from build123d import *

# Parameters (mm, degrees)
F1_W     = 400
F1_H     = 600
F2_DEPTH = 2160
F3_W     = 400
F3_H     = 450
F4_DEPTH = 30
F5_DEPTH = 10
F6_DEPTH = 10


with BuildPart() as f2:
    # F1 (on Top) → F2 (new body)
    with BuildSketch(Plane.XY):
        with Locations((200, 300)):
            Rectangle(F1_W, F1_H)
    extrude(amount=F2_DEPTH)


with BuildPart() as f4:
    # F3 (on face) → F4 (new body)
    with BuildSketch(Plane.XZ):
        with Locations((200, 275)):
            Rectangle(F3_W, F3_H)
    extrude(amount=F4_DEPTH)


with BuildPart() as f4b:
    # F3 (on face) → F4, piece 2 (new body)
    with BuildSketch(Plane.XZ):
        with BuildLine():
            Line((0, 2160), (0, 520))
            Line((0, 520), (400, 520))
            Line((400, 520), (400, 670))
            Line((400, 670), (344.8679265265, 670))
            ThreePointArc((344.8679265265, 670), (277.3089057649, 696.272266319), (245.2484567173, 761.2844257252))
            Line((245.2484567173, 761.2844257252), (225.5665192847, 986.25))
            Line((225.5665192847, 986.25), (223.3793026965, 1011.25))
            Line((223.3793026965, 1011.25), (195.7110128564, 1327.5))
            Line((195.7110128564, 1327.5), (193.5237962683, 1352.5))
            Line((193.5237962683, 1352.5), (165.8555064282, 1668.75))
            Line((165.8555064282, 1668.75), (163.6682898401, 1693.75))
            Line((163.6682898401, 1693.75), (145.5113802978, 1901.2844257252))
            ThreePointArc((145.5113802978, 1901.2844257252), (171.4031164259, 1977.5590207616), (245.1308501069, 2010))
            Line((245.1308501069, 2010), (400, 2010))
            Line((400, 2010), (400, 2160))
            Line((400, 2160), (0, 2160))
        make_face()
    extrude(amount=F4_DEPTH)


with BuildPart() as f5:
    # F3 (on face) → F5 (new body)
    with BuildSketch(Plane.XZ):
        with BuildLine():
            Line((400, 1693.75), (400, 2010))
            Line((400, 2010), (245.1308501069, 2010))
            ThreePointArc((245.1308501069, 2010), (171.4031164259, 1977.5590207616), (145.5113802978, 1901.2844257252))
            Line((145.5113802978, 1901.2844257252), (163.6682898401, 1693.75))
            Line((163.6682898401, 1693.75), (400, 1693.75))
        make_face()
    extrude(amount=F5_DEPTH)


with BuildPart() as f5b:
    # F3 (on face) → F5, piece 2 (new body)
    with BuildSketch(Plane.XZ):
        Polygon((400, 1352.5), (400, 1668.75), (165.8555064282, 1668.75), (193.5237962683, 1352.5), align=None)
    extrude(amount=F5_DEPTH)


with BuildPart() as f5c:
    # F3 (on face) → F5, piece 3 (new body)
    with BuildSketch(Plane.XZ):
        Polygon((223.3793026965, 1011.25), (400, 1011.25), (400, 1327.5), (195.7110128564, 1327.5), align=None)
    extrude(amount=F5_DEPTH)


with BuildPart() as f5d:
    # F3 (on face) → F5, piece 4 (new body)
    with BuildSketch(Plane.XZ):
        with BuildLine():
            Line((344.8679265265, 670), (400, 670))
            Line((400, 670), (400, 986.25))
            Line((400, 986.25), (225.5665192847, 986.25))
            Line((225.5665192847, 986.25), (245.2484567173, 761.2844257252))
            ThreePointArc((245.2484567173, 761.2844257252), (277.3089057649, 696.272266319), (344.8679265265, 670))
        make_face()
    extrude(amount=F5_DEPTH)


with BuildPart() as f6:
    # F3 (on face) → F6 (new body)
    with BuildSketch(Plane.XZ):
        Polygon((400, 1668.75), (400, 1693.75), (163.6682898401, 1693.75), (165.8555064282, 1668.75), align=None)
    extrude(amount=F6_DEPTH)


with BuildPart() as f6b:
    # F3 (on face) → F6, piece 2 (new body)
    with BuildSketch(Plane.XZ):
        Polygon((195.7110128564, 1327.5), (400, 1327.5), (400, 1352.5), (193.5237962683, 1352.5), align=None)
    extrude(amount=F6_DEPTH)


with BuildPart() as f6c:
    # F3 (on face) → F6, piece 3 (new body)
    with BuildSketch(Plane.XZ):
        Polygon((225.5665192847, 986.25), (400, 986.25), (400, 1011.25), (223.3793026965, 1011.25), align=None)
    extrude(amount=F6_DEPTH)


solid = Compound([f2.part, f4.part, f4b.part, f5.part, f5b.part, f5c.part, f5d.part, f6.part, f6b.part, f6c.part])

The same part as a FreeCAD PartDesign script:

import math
import FreeCAD as App
import Part
import Sketcher
Q = App.Units.Quantity

doc = App.newDocument("Part")
body = doc.addObject("PartDesign::Body", "Body")

# Sketch on XY plane
sketch1 = doc.addObject("Sketcher::SketchObject", "Sketch")
body.addObject(sketch1)
sketch1.AttachmentSupport = (doc.XY_Plane, [""])
sketch1.MapMode = "FlatFace"
sketch1.addGeometry([
    Part.LineSegment(App.Vector(0, 600, 0), App.Vector(0, 0, 0)),
    Part.LineSegment(App.Vector(0, 0, 0), App.Vector(400, 0, 0)),
    Part.LineSegment(App.Vector(400, 0, 0), App.Vector(400, 600, 0)),
    Part.LineSegment(App.Vector(400, 600, 0), App.Vector(0, 600, 0)),
], False)
sketch1.addConstraint([
    Sketcher.Constraint("Coincident", 0, 2, 1, 1),
    Sketcher.Constraint("Coincident", 1, 2, 2, 1),
    Sketcher.Constraint("Coincident", 2, 2, 3, 1),
    Sketcher.Constraint("Coincident", 3, 2, 0, 1),
    Sketcher.Constraint("Vertical", 0),
    Sketcher.Constraint("Horizontal", 1),
    Sketcher.Constraint("Vertical", 2),
    Sketcher.Constraint("Horizontal", 3),
    Sketcher.Constraint("Coincident", 0, 2, -1, 1),
    Sketcher.Constraint("DistanceX", 1, 1, 1, 2, 400.0),
    Sketcher.Constraint("DistanceY", 0, 2, 0, 1, 600.0),
])
pad1 = doc.addObject("PartDesign::Pad", "Pad")
body.addObject(pad1)
pad1.Profile = sketch1
pad1.Length = 2160
body2 = doc.addObject("PartDesign::Body", "Body001")

# Sketch on XZ plane
sketch2 = doc.addObject("Sketcher::SketchObject", "Sketch001")
body2.addObject(sketch2)
sketch2.AttachmentSupport = (doc.getObject("XZ_Plane001"), [""])
sketch2.MapMode = "FlatFace"
sketch2.addGeometry([
    Part.LineSegment(App.Vector(0, 500, 0), App.Vector(0, 50, 0)),
    Part.LineSegment(App.Vector(0, 50, 0), App.Vector(400, 50, 0)),
    Part.LineSegment(App.Vector(400, 50, 0), App.Vector(400, 500, 0)),
    Part.LineSegment(App.Vector(400, 500, 0), App.Vector(0, 500, 0)),
], False)
sketch2.addConstraint([
    Sketcher.Constraint("Coincident", 0, 2, 1, 1),
    Sketcher.Constraint("Coincident", 1, 2, 2, 1),
    Sketcher.Constraint("Coincident", 2, 2, 3, 1),
    Sketcher.Constraint("Coincident", 3, 2, 0, 1),
    Sketcher.Constraint("Vertical", 0),
    Sketcher.Constraint("Horizontal", 1),
    Sketcher.Constraint("Vertical", 2),
    Sketcher.Constraint("Horizontal", 3),
    Sketcher.Constraint("PointOnObject", 0, 2, -2),
    Sketcher.Constraint("DistanceX", 1, 1, 1, 2, 400.0),
    Sketcher.Constraint("DistanceY", 0, 2, 0, 1, 450.0),
    Sketcher.Constraint("DistanceY", -1, 1, 0, 2, 50.0),
])
pad2 = doc.addObject("PartDesign::Pad", "Pad001")
body2.addObject(pad2)
pad2.Profile = sketch2
pad2.Length = 30
body3 = doc.addObject("PartDesign::Body", "Body002")

# Sketch on XZ plane
sketch3 = doc.addObject("Sketcher::SketchObject", "Sketch002")
body3.addObject(sketch3)
sketch3.AttachmentSupport = (doc.getObject("XZ_Plane002"), [""])
sketch3.MapMode = "FlatFace"
sketch3.addGeometry([
    Part.LineSegment(App.Vector(0, 2160, 0), App.Vector(0, 520, 0)),  # 0
    Part.LineSegment(App.Vector(0, 520, 0), App.Vector(400, 520, 0)),  # 1
    Part.LineSegment(App.Vector(400, 520, 0), App.Vector(400, 670, 0)),  # 2
    Part.LineSegment(App.Vector(400, 670, 0), App.Vector(344.867927, 670, 0)),  # 3
    Part.ArcOfCircle(Part.Circle(App.Vector(344.867927, 770, 0), App.Vector(0, 0, 1), 100), math.radians(-175), math.radians(-90)),  # 4
    Part.LineSegment(App.Vector(245.248457, 761.284426, 0), App.Vector(225.566519, 986.25, 0)),  # 5
    Part.LineSegment(App.Vector(225.566519, 986.25, 0), App.Vector(223.379303, 1011.25, 0)),  # 6
    Part.LineSegment(App.Vector(223.379303, 1011.25, 0), App.Vector(195.711013, 1327.5, 0)),  # 7
    Part.LineSegment(App.Vector(195.711013, 1327.5, 0), App.Vector(193.523796, 1352.5, 0)),  # 8
    Part.LineSegment(App.Vector(193.523796, 1352.5, 0), App.Vector(165.855506, 1668.75, 0)),  # 9
    Part.LineSegment(App.Vector(165.855506, 1668.75, 0), App.Vector(163.66829, 1693.75, 0)),  # 10
    Part.LineSegment(App.Vector(163.66829, 1693.75, 0), App.Vector(145.51138, 1901.284426, 0)),  # 11
    Part.ArcOfCircle(Part.Circle(App.Vector(245.13085, 1910, 0), App.Vector(0, 0, 1), 100), math.radians(90), math.radians(185)),  # 12
    Part.LineSegment(App.Vector(245.13085, 2010, 0), App.Vector(400, 2010, 0)),  # 13
    Part.LineSegment(App.Vector(400, 2010, 0), App.Vector(400, 2160, 0)),  # 14
    Part.LineSegment(App.Vector(400, 2160, 0), App.Vector(0, 2160, 0)),  # 15
], False)
sketch3.addConstraint([
    Sketcher.Constraint("Coincident", 0, 2, 1, 1),
    Sketcher.Constraint("Coincident", 1, 2, 2, 1),
    Sketcher.Constraint("Coincident", 2, 2, 3, 1),
    Sketcher.Constraint("Tangent", 3, 2, 4, 2),
    Sketcher.Constraint("Tangent", 4, 1, 5, 1),
    Sketcher.Constraint("Coincident", 5, 2, 6, 1),
    Sketcher.Constraint("Coincident", 6, 2, 7, 1),
    Sketcher.Constraint("Coincident", 7, 2, 8, 1),
    Sketcher.Constraint("Coincident", 8, 2, 9, 1),
    Sketcher.Constraint("Coincident", 9, 2, 10, 1),
    Sketcher.Constraint("Coincident", 10, 2, 11, 1),
    Sketcher.Constraint("Tangent", 11, 2, 12, 2),
    Sketcher.Constraint("Tangent", 12, 1, 13, 1),
    Sketcher.Constraint("Coincident", 13, 2, 14, 1),
    Sketcher.Constraint("Coincident", 14, 2, 15, 1),
    Sketcher.Constraint("Coincident", 15, 2, 0, 1),
    Sketcher.Constraint("Vertical", 0),
    Sketcher.Constraint("Horizontal", 1),
    Sketcher.Constraint("Vertical", 2),
    Sketcher.Constraint("Horizontal", 3),
    Sketcher.Constraint("Horizontal", 13),
    Sketcher.Constraint("Vertical", 14),
    Sketcher.Constraint("Horizontal", 15),
    Sketcher.Constraint("Equal", 4, 12),
    Sketcher.Constraint("PointOnObject", 0, 2, -2),
    Sketcher.Constraint("Parallel", 5, 6),
    Sketcher.Constraint("Parallel", 6, 7),
    Sketcher.Constraint("Parallel", 7, 8),
    Sketcher.Constraint("Parallel", 8, 9),
    Sketcher.Constraint("Parallel", 9, 10),
    Sketcher.Constraint("Parallel", 10, 11),
    Sketcher.Constraint("Vertical", 2, 2, 13, 2),
    Sketcher.Constraint("Equal", 2, 14),
    Sketcher.Constraint("Equal", 6, 8),
    Sketcher.Constraint("Equal", 7, 9),
    Sketcher.Constraint("Equal", 8, 10),
    Sketcher.Constraint("Radius", 4, 100.0),
    Sketcher.Constraint("DistanceX", 1, 1, 1, 2, 400.0),
    Sketcher.Constraint("DistanceY", 0, 2, 0, 1, 1640.0),
    Sketcher.Constraint("DistanceY", 2, 1, 2, 2, 150.0),
    Sketcher.Constraint("Angle", 5, Q("95 deg")),
    Sketcher.Constraint("DistanceY", -1, 1, 4, 3, 770.0),
    Sketcher.Constraint("DistanceY", 5, 2, 6, 2, 25.0),
    Sketcher.Constraint("DistanceY", -1, 1, 7, 2, 1327.5),
    Sketcher.Constraint("DistanceY", 6, 2, 9, 2, 657.5),
    Sketcher.Constraint("DistanceX", 13, 1, 13, 2, 154.86915),
])
pad3 = doc.addObject("PartDesign::Pad", "Pad002")
body3.addObject(pad3)
pad3.Profile = sketch3
pad3.Length = 30
body4 = doc.addObject("PartDesign::Body", "Body003")

# Sketch on XZ plane
sketch4 = doc.addObject("Sketcher::SketchObject", "Sketch003")
body4.addObject(sketch4)
sketch4.AttachmentSupport = (doc.getObject("XZ_Plane003"), [""])
sketch4.MapMode = "FlatFace"
sketch4.addGeometry([
    Part.LineSegment(App.Vector(400, 1693.75, 0), App.Vector(400, 2010, 0)),  # 0
    Part.LineSegment(App.Vector(400, 2010, 0), App.Vector(245.13085, 2010, 0)),  # 1
    Part.ArcOfCircle(Part.Circle(App.Vector(245.13085, 1910, 0), App.Vector(0, 0, 1), 100), math.radians(90), math.radians(185)),  # 2
    Part.LineSegment(App.Vector(145.51138, 1901.284426, 0), App.Vector(163.66829, 1693.75, 0)),  # 3
    Part.LineSegment(App.Vector(163.66829, 1693.75, 0), App.Vector(400, 1693.75, 0)),  # 4
], False)
sketch4.addConstraint([
    Sketcher.Constraint("Coincident", 0, 2, 1, 1),
    Sketcher.Constraint("Tangent", 1, 2, 2, 1),
    Sketcher.Constraint("Tangent", 2, 2, 3, 1),
    Sketcher.Constraint("Coincident", 3, 2, 4, 1),
    Sketcher.Constraint("Coincident", 4, 2, 0, 1),
    Sketcher.Constraint("Vertical", 0),
    Sketcher.Constraint("Horizontal", 1),
    Sketcher.Constraint("Horizontal", 4),
    Sketcher.Constraint("Radius", 2, 100.0),
    Sketcher.Constraint("Angle", 3, Q("-85 deg")),
    Sketcher.Constraint("DistanceY", -1, 1, 2, 3, 1910.0),
    Sketcher.Constraint("DistanceX", -1, 1, 0, 2, 400.0),
    Sketcher.Constraint("DistanceY", 0, 1, 0, 2, 316.25),
    Sketcher.Constraint("DistanceX", 1, 2, 1, 1, 154.86915),
])
pad4 = doc.addObject("PartDesign::Pad", "Pad003")
body4.addObject(pad4)
pad4.Profile = sketch4
pad4.Length = 10
body5 = doc.addObject("PartDesign::Body", "Body004")

# Sketch on XZ plane
sketch5 = doc.addObject("Sketcher::SketchObject", "Sketch004")
body5.addObject(sketch5)
sketch5.AttachmentSupport = (doc.getObject("XZ_Plane004"), [""])
sketch5.MapMode = "FlatFace"
sketch5.addGeometry([
    Part.LineSegment(App.Vector(400, 1352.5, 0), App.Vector(400, 1668.75, 0)),
    Part.LineSegment(App.Vector(400, 1668.75, 0), App.Vector(165.855506, 1668.75, 0)),
    Part.LineSegment(App.Vector(165.855506, 1668.75, 0), App.Vector(193.523796, 1352.5, 0)),
    Part.LineSegment(App.Vector(193.523796, 1352.5, 0), App.Vector(400, 1352.5, 0)),
], False)
sketch5.addConstraint([
    Sketcher.Constraint("Coincident", 0, 2, 1, 1),
    Sketcher.Constraint("Coincident", 1, 2, 2, 1),
    Sketcher.Constraint("Coincident", 2, 2, 3, 1),
    Sketcher.Constraint("Coincident", 3, 2, 0, 1),
    Sketcher.Constraint("Vertical", 0),
    Sketcher.Constraint("Horizontal", 1),
    Sketcher.Constraint("Horizontal", 3),
    Sketcher.Constraint("Angle", 2, Q("-85 deg")),
    Sketcher.Constraint("DistanceX", -1, 1, 0, 2, 400.0),
    Sketcher.Constraint("DistanceY", 0, 1, 0, 2, 316.25),
    Sketcher.Constraint("DistanceY", -1, 1, 2, 2, 1352.5),
    Sketcher.Constraint("DistanceX", 1, 2, 1, 1, 234.144494),
])
pad5 = doc.addObject("PartDesign::Pad", "Pad004")
body5.addObject(pad5)
pad5.Profile = sketch5
pad5.Length = 10
body6 = doc.addObject("PartDesign::Body", "Body005")

# Sketch on XZ plane
sketch6 = doc.addObject("Sketcher::SketchObject", "Sketch005")
body6.addObject(sketch6)
sketch6.AttachmentSupport = (doc.getObject("XZ_Plane005"), [""])
sketch6.MapMode = "FlatFace"
sketch6.addGeometry([
    Part.LineSegment(App.Vector(223.379303, 1011.25, 0), App.Vector(400, 1011.25, 0)),
    Part.LineSegment(App.Vector(400, 1011.25, 0), App.Vector(400, 1327.5, 0)),
    Part.LineSegment(App.Vector(400, 1327.5, 0), App.Vector(195.711013, 1327.5, 0)),
    Part.LineSegment(App.Vector(195.711013, 1327.5, 0), App.Vector(223.379303, 1011.25, 0)),
], False)
sketch6.addConstraint([
    Sketcher.Constraint("Coincident", 0, 2, 1, 1),
    Sketcher.Constraint("Coincident", 1, 2, 2, 1),
    Sketcher.Constraint("Coincident", 2, 2, 3, 1),
    Sketcher.Constraint("Coincident", 3, 2, 0, 1),
    Sketcher.Constraint("Horizontal", 0),
    Sketcher.Constraint("Vertical", 1),
    Sketcher.Constraint("Horizontal", 2),
    Sketcher.Constraint("Angle", 3, Q("-85 deg")),
    Sketcher.Constraint("DistanceX", -1, 1, 0, 2, 400.0),
    Sketcher.Constraint("DistanceY", 1, 1, 1, 2, 316.25),
    Sketcher.Constraint("DistanceY", -1, 1, 1, 2, 1327.5),
    Sketcher.Constraint("DistanceX", 0, 1, 0, 2, 176.620697),
])
pad6 = doc.addObject("PartDesign::Pad", "Pad005")
body6.addObject(pad6)
pad6.Profile = sketch6
pad6.Length = 10
body7 = doc.addObject("PartDesign::Body", "Body006")

# Sketch on XZ plane
sketch7 = doc.addObject("Sketcher::SketchObject", "Sketch006")
body7.addObject(sketch7)
sketch7.AttachmentSupport = (doc.getObject("XZ_Plane006"), [""])
sketch7.MapMode = "FlatFace"
sketch7.addGeometry([
    Part.LineSegment(App.Vector(344.867927, 670, 0), App.Vector(400, 670, 0)),  # 0
    Part.LineSegment(App.Vector(400, 670, 0), App.Vector(400, 986.25, 0)),  # 1
    Part.LineSegment(App.Vector(400, 986.25, 0), App.Vector(225.566519, 986.25, 0)),  # 2
    Part.LineSegment(App.Vector(225.566519, 986.25, 0), App.Vector(245.248457, 761.284426, 0)),  # 3
    Part.ArcOfCircle(Part.Circle(App.Vector(344.867927, 770, 0), App.Vector(0, 0, 1), 100), math.radians(-175), math.radians(-90)),  # 4
], False)
sketch7.addConstraint([
    Sketcher.Constraint("Coincident", 0, 2, 1, 1),
    Sketcher.Constraint("Coincident", 1, 2, 2, 1),
    Sketcher.Constraint("Coincident", 2, 2, 3, 1),
    Sketcher.Constraint("Tangent", 3, 2, 4, 1),
    Sketcher.Constraint("Tangent", 4, 2, 0, 1),
    Sketcher.Constraint("Horizontal", 0),
    Sketcher.Constraint("Vertical", 1),
    Sketcher.Constraint("Horizontal", 2),
    Sketcher.Constraint("Radius", 4, 100.0),
    Sketcher.Constraint("Angle", 3, Q("-85 deg")),
    Sketcher.Constraint("DistanceY", -1, 1, 4, 3, 770.0),
    Sketcher.Constraint("DistanceX", -1, 1, 0, 2, 400.0),
    Sketcher.Constraint("DistanceY", 1, 1, 1, 2, 316.25),
    Sketcher.Constraint("DistanceX", 2, 2, 2, 1, 174.433481),
])
pad7 = doc.addObject("PartDesign::Pad", "Pad006")
body7.addObject(pad7)
pad7.Profile = sketch7
pad7.Length = 10
body8 = doc.addObject("PartDesign::Body", "Body007")

# Sketch on XZ plane
sketch8 = doc.addObject("Sketcher::SketchObject", "Sketch007")
body8.addObject(sketch8)
sketch8.AttachmentSupport = (doc.getObject("XZ_Plane007"), [""])
sketch8.MapMode = "FlatFace"
sketch8.addGeometry([
    Part.LineSegment(App.Vector(400, 1668.75, 0), App.Vector(400, 1693.75, 0)),
    Part.LineSegment(App.Vector(400, 1693.75, 0), App.Vector(163.66829, 1693.75, 0)),
    Part.LineSegment(App.Vector(163.66829, 1693.75, 0), App.Vector(165.855506, 1668.75, 0)),
    Part.LineSegment(App.Vector(165.855506, 1668.75, 0), App.Vector(400, 1668.75, 0)),
], False)
sketch8.addConstraint([
    Sketcher.Constraint("Coincident", 0, 2, 1, 1),
    Sketcher.Constraint("Coincident", 1, 2, 2, 1),
    Sketcher.Constraint("Coincident", 2, 2, 3, 1),
    Sketcher.Constraint("Coincident", 3, 2, 0, 1),
    Sketcher.Constraint("Vertical", 0),
    Sketcher.Constraint("Horizontal", 1),
    Sketcher.Constraint("Horizontal", 3),
    Sketcher.Constraint("DistanceY", 0, 1, 0, 2, 25.0),
    Sketcher.Constraint("Angle", 2, Q("-85 deg")),
    Sketcher.Constraint("DistanceX", -1, 1, 0, 2, 400.0),
    Sketcher.Constraint("DistanceY", -1, 1, 0, 2, 1693.75),
    Sketcher.Constraint("DistanceX", 1, 2, 1, 1, 236.33171),
])
pad8 = doc.addObject("PartDesign::Pad", "Pad007")
body8.addObject(pad8)
pad8.Profile = sketch8
pad8.Length = 10
body9 = doc.addObject("PartDesign::Body", "Body008")

# Sketch on XZ plane
sketch9 = doc.addObject("Sketcher::SketchObject", "Sketch008")
body9.addObject(sketch9)
sketch9.AttachmentSupport = (doc.getObject("XZ_Plane008"), [""])
sketch9.MapMode = "FlatFace"
sketch9.addGeometry([
    Part.LineSegment(App.Vector(195.711013, 1327.5, 0), App.Vector(400, 1327.5, 0)),
    Part.LineSegment(App.Vector(400, 1327.5, 0), App.Vector(400, 1352.5, 0)),
    Part.LineSegment(App.Vector(400, 1352.5, 0), App.Vector(193.523796, 1352.5, 0)),
    Part.LineSegment(App.Vector(193.523796, 1352.5, 0), App.Vector(195.711013, 1327.5, 0)),
], False)
sketch9.addConstraint([
    Sketcher.Constraint("Coincident", 0, 2, 1, 1),
    Sketcher.Constraint("Coincident", 1, 2, 2, 1),
    Sketcher.Constraint("Coincident", 2, 2, 3, 1),
    Sketcher.Constraint("Coincident", 3, 2, 0, 1),
    Sketcher.Constraint("Horizontal", 0),
    Sketcher.Constraint("Vertical", 1),
    Sketcher.Constraint("Horizontal", 2),
    Sketcher.Constraint("DistanceY", 1, 1, 1, 2, 25.0),
    Sketcher.Constraint("Angle", 3, Q("-85 deg")),
    Sketcher.Constraint("DistanceX", -1, 1, 0, 2, 400.0),
    Sketcher.Constraint("DistanceY", -1, 1, 0, 2, 1327.5),
    Sketcher.Constraint("DistanceX", 0, 1, 0, 2, 204.288987),
])
pad9 = doc.addObject("PartDesign::Pad", "Pad008")
body9.addObject(pad9)
pad9.Profile = sketch9
pad9.Length = 10
body10 = doc.addObject("PartDesign::Body", "Body009")

# Sketch on XZ plane
sketch10 = doc.addObject("Sketcher::SketchObject", "Sketch009")
body10.addObject(sketch10)
sketch10.AttachmentSupport = (doc.getObject("XZ_Plane009"), [""])
sketch10.MapMode = "FlatFace"
sketch10.addGeometry([
    Part.LineSegment(App.Vector(225.566519, 986.25, 0), App.Vector(400, 986.25, 0)),
    Part.LineSegment(App.Vector(400, 986.25, 0), App.Vector(400, 1011.25, 0)),
    Part.LineSegment(App.Vector(400, 1011.25, 0), App.Vector(223.379303, 1011.25, 0)),
    Part.LineSegment(App.Vector(223.379303, 1011.25, 0), App.Vector(225.566519, 986.25, 0)),
], False)
sketch10.addConstraint([
    Sketcher.Constraint("Coincident", 0, 2, 1, 1),
    Sketcher.Constraint("Coincident", 1, 2, 2, 1),
    Sketcher.Constraint("Coincident", 2, 2, 3, 1),
    Sketcher.Constraint("Coincident", 3, 2, 0, 1),
    Sketcher.Constraint("Horizontal", 0),
    Sketcher.Constraint("Vertical", 1),
    Sketcher.Constraint("Horizontal", 2),
    Sketcher.Constraint("DistanceY", 1, 1, 1, 2, 25.0),
    Sketcher.Constraint("Angle", 3, Q("-85 deg")),
    Sketcher.Constraint("DistanceX", -1, 1, 0, 2, 400.0),
    Sketcher.Constraint("DistanceY", -1, 1, 0, 2, 986.25),
    Sketcher.Constraint("DistanceX", 0, 1, 0, 2, 174.433481),
])
pad10 = doc.addObject("PartDesign::Pad", "Pad009")
body10.addObject(pad10)
pad10.Profile = sketch10
pad10.Length = 10

doc.recompute()
